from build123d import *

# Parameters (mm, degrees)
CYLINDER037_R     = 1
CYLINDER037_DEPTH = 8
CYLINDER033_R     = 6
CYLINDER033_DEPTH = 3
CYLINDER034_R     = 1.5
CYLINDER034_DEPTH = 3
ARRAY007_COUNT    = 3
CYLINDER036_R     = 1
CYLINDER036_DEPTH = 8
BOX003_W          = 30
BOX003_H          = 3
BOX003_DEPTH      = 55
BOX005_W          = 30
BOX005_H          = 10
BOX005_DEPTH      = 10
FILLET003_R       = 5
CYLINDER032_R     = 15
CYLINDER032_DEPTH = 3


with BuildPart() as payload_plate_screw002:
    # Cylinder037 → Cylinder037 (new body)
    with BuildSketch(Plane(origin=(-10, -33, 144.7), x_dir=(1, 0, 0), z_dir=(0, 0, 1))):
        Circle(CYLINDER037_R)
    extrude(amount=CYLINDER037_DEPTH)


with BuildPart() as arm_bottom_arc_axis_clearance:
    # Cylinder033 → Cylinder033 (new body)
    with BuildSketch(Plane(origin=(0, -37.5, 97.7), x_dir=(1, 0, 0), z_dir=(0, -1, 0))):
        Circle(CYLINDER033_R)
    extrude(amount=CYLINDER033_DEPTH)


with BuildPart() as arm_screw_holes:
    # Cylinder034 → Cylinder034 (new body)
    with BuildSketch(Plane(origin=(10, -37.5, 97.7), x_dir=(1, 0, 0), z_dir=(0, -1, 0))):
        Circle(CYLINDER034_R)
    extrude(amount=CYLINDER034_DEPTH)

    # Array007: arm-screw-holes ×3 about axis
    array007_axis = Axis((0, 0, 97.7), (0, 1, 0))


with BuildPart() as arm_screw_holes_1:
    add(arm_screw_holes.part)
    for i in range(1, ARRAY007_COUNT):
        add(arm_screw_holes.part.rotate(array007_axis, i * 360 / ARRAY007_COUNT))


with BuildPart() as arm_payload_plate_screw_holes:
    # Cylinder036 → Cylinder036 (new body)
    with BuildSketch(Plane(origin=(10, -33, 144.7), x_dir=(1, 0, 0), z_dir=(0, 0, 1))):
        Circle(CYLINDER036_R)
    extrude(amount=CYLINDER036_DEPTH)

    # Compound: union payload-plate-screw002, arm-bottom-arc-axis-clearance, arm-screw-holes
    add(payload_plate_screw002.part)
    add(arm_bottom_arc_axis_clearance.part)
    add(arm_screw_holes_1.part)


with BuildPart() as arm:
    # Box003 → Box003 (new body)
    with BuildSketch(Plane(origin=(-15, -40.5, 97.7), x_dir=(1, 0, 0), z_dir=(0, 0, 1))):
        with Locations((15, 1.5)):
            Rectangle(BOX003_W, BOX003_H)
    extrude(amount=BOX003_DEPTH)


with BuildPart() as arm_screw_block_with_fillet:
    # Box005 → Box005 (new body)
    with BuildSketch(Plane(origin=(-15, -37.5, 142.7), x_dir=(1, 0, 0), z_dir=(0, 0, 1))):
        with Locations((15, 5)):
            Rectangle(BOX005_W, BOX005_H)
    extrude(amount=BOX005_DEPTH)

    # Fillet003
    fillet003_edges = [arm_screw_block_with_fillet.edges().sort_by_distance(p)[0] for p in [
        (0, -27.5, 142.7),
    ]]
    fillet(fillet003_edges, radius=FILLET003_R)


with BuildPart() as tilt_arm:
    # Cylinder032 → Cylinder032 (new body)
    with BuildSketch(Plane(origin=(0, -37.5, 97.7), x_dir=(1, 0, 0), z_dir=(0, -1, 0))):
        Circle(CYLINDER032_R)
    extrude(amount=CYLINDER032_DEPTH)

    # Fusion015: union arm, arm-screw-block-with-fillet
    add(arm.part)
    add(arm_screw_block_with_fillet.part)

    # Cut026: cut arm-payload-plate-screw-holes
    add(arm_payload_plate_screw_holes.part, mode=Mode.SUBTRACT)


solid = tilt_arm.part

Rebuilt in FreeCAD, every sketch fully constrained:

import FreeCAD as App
import Part
import Sketcher
from FreeCAD import Vector


def edges_at(feature, points):
    """Names of the edges that pass closest to the given points."""
    edges = feature.Shape.Edges
    near = lambda p: min(range(len(edges)), key=lambda i: edges[i].distToShape(Part.Vertex(*p))[0])
    return sorted({f"Edge{near(p) + 1}" for p in points})


def add_polygon(sketch, points):
    """Adds a closed chain of lines whose ends are joined by coincident constraints."""
    first, n = sketch.GeometryCount, len(points)
    for a, b in zip(points, points[1:] + points[:1]):
        sketch.addGeometry(Part.LineSegment(App.Vector(*a, 0), App.Vector(*b, 0)), False)
    for i in range(n):
        sketch.addConstraint(Sketcher.Constraint("Coincident", first + i, 2, first + (i + 1) % n, 1))

doc = App.newDocument("Part")
body = doc.addObject("PartDesign::Body", "Body")

# Sketch on XY plane
sketch1 = body.newObject("Sketcher::SketchObject", "Sketch")
sketch1.AttachmentSupport = (doc.getObject("XY_Plane"), [""])
sketch1.MapMode = "FlatFace"
sketch1.AttachmentOffset = App.Placement(Vector(0, 0, 144.7), App.Rotation())
sketch1.addGeometry(Part.Circle(Vector(-10, -33, 0), Vector(0, 0, 1), 1), False)
sketch1.addConstraint(Sketcher.Constraint("Diameter", 0, 2.0))
sketch1.addConstraint(Sketcher.Constraint("DistanceX", 0, 3, -1, 1, 10.0))
sketch1.addConstraint(Sketcher.Constraint("DistanceY", 0, 3, -1, 1, 33.0))
pad1 = body.newObject("PartDesign::Pad", "Pad")
pad1.Profile = sketch1
pad1.Length = 8
body2 = doc.addObject("PartDesign::Body", "Body001")

# Sketch on XZ plane
sketch2 = body2.newObject("Sketcher::SketchObject", "Sketch001")
sketch2.AttachmentSupport = (doc.getObject("XZ_Plane001"), [""])
sketch2.MapMode = "FlatFace"
sketch2.AttachmentOffset = App.Placement(Vector(0, 0, 37.5), App.Rotation())
sketch2.addGeometry(Part.Circle(Vector(0, 98, 0), Vector(0, 0, 1), 6), False)
sketch2.addConstraint(Sketcher.Constraint("PointOnObject", 0, 3, -2))
sketch2.addConstraint(Sketcher.Constraint("Diameter", 0, 12.0))
sketch2.addConstraint(Sketcher.Constraint("DistanceY", -1, 1, 0, 3, 97.7))
pad2 = body2.newObject("PartDesign::Pad", "Pad001")
pad2.Profile = sketch2
pad2.Length = 3
body3 = doc.addObject("PartDesign::Body", "Body002")

# Sketch on XZ plane
sketch3 = body3.newObject("Sketcher::SketchObject", "Sketch002")
sketch3.AttachmentSupport = (doc.getObject("XZ_Plane002"), [""])
sketch3.MapMode = "FlatFace"
sketch3.AttachmentOffset = App.Placement(Vector(0, 0, 37.5), App.Rotation())
sketch3.addGeometry(Part.Circle(Vector(10, 97.7, 0), Vector(0, 0, 1), 1.5), False)
sketch3.addConstraint(Sketcher.Constraint("Diameter", 0, 3.0))
sketch3.addConstraint(Sketcher.Constraint("DistanceX", -1, 1, 0, 3, 10.0))
sketch3.addConstraint(Sketcher.Constraint("DistanceY", -1, 1, 0, 3, 97.7))
pad3 = body3.newObject("PartDesign::Pad", "Pad002")
pad3.Profile = sketch3
pad3.Length = 3
body4 = doc.addObject("PartDesign::Body", "Body003")
body4.AllowCompound = True
doc.recompute()

body4.BaseFeature = body3
doc.recompute()

body5 = doc.addObject("PartDesign::Body", "Body004")
body5.BaseFeature = body3
body5.Placement = App.Placement(Vector(-84.610682, 0, 146.55), App.Rotation(Vector(0, 1, 0), 120))
boolean = body4.newObject("PartDesign::Boolean", "Boolean")
boolean.Type = "Fuse"
boolean.addObjects([body5])
doc.recompute()

body3.Placement = App.Placement(Vector(84.610682, 0, 146.55), App.Rotation(Vector(0, 1, 0), 240))
boolean2 = body4.newObject("PartDesign::Boolean", "Boolean001")
boolean2.Type = "Fuse"
boolean2.addObjects([body3])
body6 = doc.addObject("PartDesign::Body", "Body005")
body6.AllowCompound = True

# Sketch on XY plane
sketch4 = body6.newObject("Sketcher::SketchObject", "Sketch003")
sketch4.AttachmentSupport = (doc.getObject("XY_Plane005"), [""])
sketch4.MapMode = "FlatFace"
sketch4.AttachmentOffset = App.Placement(Vector(0, 0, 144.7), App.Rotation())
sketch4.addGeometry(Part.Circle(Vector(10, -33, 0), Vector(0, 0, 1), 1), False)
sketch4.addConstraint(Sketcher.Constraint("Diameter", 0, 2.0))
sketch4.addConstraint(Sketcher.Constraint("DistanceX", -1, 1, 0, 3, 10.0))
sketch4.addConstraint(Sketcher.Constraint("DistanceY", 0, 3, -1, 1, 33.0))
pad4 = body6.newObject("PartDesign::Pad", "Pad003")
pad4.Profile = sketch4
pad4.Length = 8
doc.recompute()

boolean3 = body6.newObject("PartDesign::Boolean", "Boolean002")
boolean3.Type = "Fuse"
boolean3.addObjects([body])
doc.recompute()

boolean4 = body6.newObject("PartDesign::Boolean", "Boolean003")
boolean4.Type = "Fuse"
boolean4.addObjects([body2])
doc.recompute()

boolean5 = body6.newObject("PartDesign::Boolean", "Boolean004")
boolean5.Type = "Fuse"
boolean5.addObjects([body4])
body7 = doc.addObject("PartDesign::Body", "Body006")

# Sketch on XY plane
sketch5 = body7.newObject("Sketcher::SketchObject", "Sketch004")
sketch5.AttachmentSupport = (doc.getObject("XY_Plane006"), [""])
sketch5.MapMode = "FlatFace"
sketch5.AttachmentOffset = App.Placement(Vector(0, 0, 97.7), App.Rotation())
add_polygon(sketch5, [(-15, -37.5), (-15, -40.5), (15, -40.5), (15, -37.5)])  # lines 0-3
sketch5.addConstraint(Sketcher.Constraint("Vertical", 0))
sketch5.addConstraint(Sketcher.Constraint("Horizontal", 1))
sketch5.addConstraint(Sketcher.Constraint("Vertical", 2))
sketch5.addConstraint(Sketcher.Constraint("Horizontal", 3))
sketch5.addConstraint(Sketcher.Constraint("DistanceX", 1, 1, 1, 2, 30.0))
sketch5.addConstraint(Sketcher.Constraint("DistanceY", 0, 2, 0, 1, 3.0))
sketch5.addConstraint(Sketcher.Constraint("DistanceX", 0, 2, -1, 1, 15.0))
sketch5.addConstraint(Sketcher.Constraint("DistanceY", 0, 2, -1, 1, 40.5))
pad5 = body7.newObject("PartDesign::Pad", "Pad004")
pad5.Profile = sketch5
pad5.Length = 55
body8 = doc.addObject("PartDesign::Body", "Body007")

# Sketch on XY plane
sketch6 = body8.newObject("Sketcher::SketchObject", "Sketch005")
sketch6.AttachmentSupport = (doc.getObject("XY_Plane007"), [""])
sketch6.MapMode = "FlatFace"
sketch6.AttachmentOffset = App.Placement(Vector(0, 0, 142.7), App.Rotation())
add_polygon(sketch6, [(-15, -28), (-15, -38), (15, -38), (15, -28)])  # lines 0-3
sketch6.addConstraint(Sketcher.Constraint("Vertical", 0))
sketch6.addConstraint(Sketcher.Constraint("Horizontal", 1))
sketch6.addConstraint(Sketcher.Constraint("Vertical", 2))
sketch6.addConstraint(Sketcher.Constraint("Horizontal", 3))
sketch6.addConstraint(Sketcher.Constraint("DistanceX", 1, 1, 1, 2, 30.0))
sketch6.addConstraint(Sketcher.Constraint("DistanceY", 0, 2, 0, 1, 10.0))
sketch6.addConstraint(Sketcher.Constraint("DistanceX", 0, 2, -1, 1, 15.0))
sketch6.addConstraint(Sketcher.Constraint("DistanceY", 0, 2, -1, 1, 37.5))
pad6 = body8.newObject("PartDesign::Pad", "Pad005")
pad6.Profile = sketch6
pad6.Length = 10
doc.recompute()

fillet = body8.newObject("PartDesign::Fillet", "Fillet")
fillet.Base = (pad6, edges_at(pad6, [(0, -27.5, 142.7)]))
fillet.Radius = 5
body9 = doc.addObject("PartDesign::Body", "Body008")

# Sketch on XZ plane
sketch7 = body9.newObject("Sketcher::SketchObject", "Sketch006")
sketch7.AttachmentSupport = (doc.getObject("XZ_Plane008"), [""])
sketch7.MapMode = "FlatFace"
sketch7.AttachmentOffset = App.Placement(Vector(0, 0, 37.5), App.Rotation())
sketch7.addGeometry(Part.Circle(Vector(0, 98, 0), Vector(0, 0, 1), 15), False)
sketch7.addConstraint(Sketcher.Constraint("PointOnObject", 0, 3, -2))
sketch7.addConstraint(Sketcher.Constraint("Diameter", 0, 30.0))
sketch7.addConstraint(Sketcher.Constraint("DistanceY", -1, 1, 0, 3, 97.7))
pad7 = body9.newObject("PartDesign::Pad", "Pad006")
pad7.Profile = sketch7
pad7.Length = 3
doc.recompute()

boolean6 = body9.newObject("PartDesign::Boolean", "Boolean005")
boolean6.Type = "Fuse"
boolean6.addObjects([body7])
doc.recompute()

boolean7 = body9.newObject("PartDesign::Boolean", "Boolean006")
boolean7.Type = "Fuse"
boolean7.addObjects([body8])
doc.recompute()

boolean8 = body9.newObject("PartDesign::Boolean", "Boolean007")
boolean8.Type = "Cut"
boolean8.addObjects([body6])

doc.recompute()
